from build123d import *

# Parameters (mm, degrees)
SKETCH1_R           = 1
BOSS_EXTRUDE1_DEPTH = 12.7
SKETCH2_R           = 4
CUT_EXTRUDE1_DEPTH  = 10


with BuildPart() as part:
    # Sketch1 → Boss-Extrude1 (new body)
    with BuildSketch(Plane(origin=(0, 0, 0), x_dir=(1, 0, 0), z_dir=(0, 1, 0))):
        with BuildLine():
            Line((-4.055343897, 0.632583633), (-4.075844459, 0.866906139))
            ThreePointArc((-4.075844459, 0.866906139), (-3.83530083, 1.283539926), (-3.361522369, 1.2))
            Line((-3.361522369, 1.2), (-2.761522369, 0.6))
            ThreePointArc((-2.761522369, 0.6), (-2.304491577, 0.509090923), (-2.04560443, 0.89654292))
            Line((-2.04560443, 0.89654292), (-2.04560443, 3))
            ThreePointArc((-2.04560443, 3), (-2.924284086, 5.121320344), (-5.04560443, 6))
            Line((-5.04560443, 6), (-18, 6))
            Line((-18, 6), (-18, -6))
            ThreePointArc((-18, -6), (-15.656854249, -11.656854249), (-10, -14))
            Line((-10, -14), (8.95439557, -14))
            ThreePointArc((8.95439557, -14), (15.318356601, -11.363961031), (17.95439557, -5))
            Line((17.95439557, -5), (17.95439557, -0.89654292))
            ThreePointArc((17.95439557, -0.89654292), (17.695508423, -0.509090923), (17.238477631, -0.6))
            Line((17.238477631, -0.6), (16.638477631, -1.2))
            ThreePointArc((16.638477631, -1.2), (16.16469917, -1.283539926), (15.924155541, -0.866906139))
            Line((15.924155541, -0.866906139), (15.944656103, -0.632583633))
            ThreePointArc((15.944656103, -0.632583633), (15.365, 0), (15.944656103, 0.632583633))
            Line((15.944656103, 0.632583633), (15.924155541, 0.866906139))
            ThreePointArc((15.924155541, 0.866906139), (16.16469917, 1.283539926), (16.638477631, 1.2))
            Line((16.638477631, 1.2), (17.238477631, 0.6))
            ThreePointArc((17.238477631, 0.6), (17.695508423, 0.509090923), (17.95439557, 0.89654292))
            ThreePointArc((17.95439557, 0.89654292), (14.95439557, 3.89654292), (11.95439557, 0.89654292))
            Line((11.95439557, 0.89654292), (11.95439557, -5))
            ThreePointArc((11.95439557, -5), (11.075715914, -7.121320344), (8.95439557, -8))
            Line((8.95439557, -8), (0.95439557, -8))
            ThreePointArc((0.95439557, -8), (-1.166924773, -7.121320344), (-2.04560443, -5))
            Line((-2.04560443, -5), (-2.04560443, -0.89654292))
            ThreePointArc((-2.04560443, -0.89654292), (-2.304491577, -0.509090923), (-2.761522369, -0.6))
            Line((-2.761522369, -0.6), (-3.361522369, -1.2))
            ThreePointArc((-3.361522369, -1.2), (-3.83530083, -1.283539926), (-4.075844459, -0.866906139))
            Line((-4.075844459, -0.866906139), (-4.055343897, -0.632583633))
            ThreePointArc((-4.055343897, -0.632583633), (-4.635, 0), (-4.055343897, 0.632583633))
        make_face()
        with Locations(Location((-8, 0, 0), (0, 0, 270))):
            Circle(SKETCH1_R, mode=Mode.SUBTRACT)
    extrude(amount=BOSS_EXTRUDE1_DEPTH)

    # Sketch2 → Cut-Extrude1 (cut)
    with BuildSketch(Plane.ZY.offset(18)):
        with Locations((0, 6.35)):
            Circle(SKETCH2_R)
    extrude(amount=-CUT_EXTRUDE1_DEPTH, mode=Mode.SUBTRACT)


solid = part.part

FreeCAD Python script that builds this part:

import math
import FreeCAD as App
import Part
import Sketcher
from FreeCAD import Vector
Q = App.Units.Quantity

doc = App.newDocument("Part")
body = doc.addObject("PartDesign::Body", "Body")

# Sketch on XZ plane
sketch1 = body.newObject("Sketcher::SketchObject", "Sketch")
sketch1.AttachmentSupport = (doc.getObject("XZ_Plane"), [""])
sketch1.MapMode = "FlatFace"
sketch1.addGeometry(Part.LineSegment(Vector(-4.06, -0.63, 0), Vector(-4.08, -0.87, 0)), False)
sketch1.addGeometry(Part.ArcOfCircle(Part.Circle(Vector(-3.66, -0.9, 0), Vector(0, 0, 1), 0.42), math.radians(175), math.radians(315)), False)
sketch1.addGeometry(Part.LineSegment(Vector(-3.36, -1.2, 0), Vector(-2.76, -0.6, 0)), False)
sketch1.addGeometry(Part.ArcOfCircle(Part.Circle(Vector(-2.46, -0.9, 0), Vector(0, 0, 1), 0.42), math.radians(0), math.radians(135)), False)
sketch1.addGeometry(Part.LineSegment(Vector(-2.05, -0.9, 0), Vector(-2.05, -3, 0)), False)
sketch1.addGeometry(Part.ArcOfCircle(Part.Circle(Vector(-5.05, -3, 0), Vector(0, 0, 1), 3), math.radians(-90), math.radians(0)), False)
sketch1.addGeometry(Part.LineSegment(Vector(-5.05, -6, 0), Vector(-18, -6, 0)), False)
sketch1.addGeometry(Part.LineSegment(Vector(-18, -6, 0), Vector(-18, 6, 0)), False)
sketch1.addGeometry(Part.ArcOfCircle(Part.Circle(Vector(-10, 6, 0), Vector(0, 0, 1), 8), math.radians(90), math.radians(180)), False)
sketch1.addGeometry(Part.LineSegment(Vector(-10, 14, 0), Vector(8.95, 14, 0)), False)
sketch1.addGeometry(Part.ArcOfCircle(Part.Circle(Vector(8.95, 5, 0), Vector(0, 0, 1), 9), math.radians(0), math.radians(90)), False)
sketch1.addGeometry(Part.LineSegment(Vector(17.95, 5, 0), Vector(17.95, 0.9, 0)), False)
sketch1.addGeometry(Part.ArcOfCircle(Part.Circle(Vector(17.54, 0.9, 0), Vector(0, 0, 1), 0.42), math.radians(-135), math.radians(0)), False)
sketch1.addGeometry(Part.LineSegment(Vector(17.24, 0.6, 0), Vector(16.64, 1.2, 0)), False)
sketch1.addGeometry(Part.ArcOfCircle(Part.Circle(Vector(16.34, 0.9, 0), Vector(0, 0, 1), 0.42), math.radians(45), math.radians(185)), False)
sketch1.addGeometry(Part.LineSegment(Vector(15.92, 0.87, 0), Vector(15.94, 0.63, 0)), False)
sketch1.addGeometry(Part.ArcOfCircle(Part.Circle(Vector(16, 0, 0), Vector(0, 0, 1), 0.64), math.radians(95), math.radians(265)), False)
sketch1.addGeometry(Part.LineSegment(Vector(15.94, -0.63, 0), Vector(15.92, -0.87, 0)), False)
sketch1.addGeometry(Part.ArcOfCircle(Part.Circle(Vector(16.34, -0.9, 0), Vector(0, 0, 1), 0.42), math.radians(175), math.radians(315)), False)
sketch1.addGeometry(Part.LineSegment(Vector(16.64, -1.2, 0), Vector(17.24, -0.6, 0)), False)
sketch1.addGeometry(Part.ArcOfCircle(Part.Circle(Vector(17.54, -0.9, 0), Vector(0, 0, 1), 0.42), math.radians(0), math.radians(135)), False)
sketch1.addGeometry(Part.ArcOfCircle(Part.Circle(Vector(14.95, -0.9, 0), Vector(0, 0, 1), 3), math.radians(180), math.radians(360)), False)
sketch1.addGeometry(Part.LineSegment(Vector(11.95, -0.9, 0), Vector(11.95, 5, 0)), False)
sketch1.addGeometry(Part.ArcOfCircle(Part.Circle(Vector(8.95, 5, 0), Vector(0, 0, 1), 3), math.radians(0), math.radians(90)), False)
sketch1.addGeometry(Part.LineSegment(Vector(8.95, 8, 0), Vector(0.95, 8, 0)), False)
sketch1.addGeometry(Part.ArcOfCircle(Part.Circle(Vector(0.95, 5, 0), Vector(0, 0, 1), 3), math.radians(90), math.radians(180)), False)
sketch1.addGeometry(Part.LineSegment(Vector(-2.05, 5, 0), Vector(-2.05, 0.9, 0)), False)
sketch1.addGeometry(Part.ArcOfCircle(Part.Circle(Vector(-2.46, 0.9, 0), Vector(0, 0, 1), 0.42), math.radians(-135), math.radians(0)), False)
sketch1.addGeometry(Part.LineSegment(Vector(-2.76, 0.6, 0), Vector(-3.36, 1.2, 0)), False)
sketch1.addGeometry(Part.ArcOfCircle(Part.Circle(Vector(-3.66, 0.9, 0), Vector(0, 0, 1), 0.42), math.radians(45), math.radians(185)), False)
sketch1.addGeometry(Part.LineSegment(Vector(-4.08, 0.87, 0), Vector(-4.06, 0.63, 0)), False)
sketch1.addGeometry(Part.ArcOfCircle(Part.Circle(Vector(-4, 0, 0), Vector(0, 0, 1), 0.64), math.radians(95), math.radians(265)), False)
sketch1.addGeometry(Part.Circle(Vector(-8, 0, 0), Vector(0, 0, 1), 1), False)
sketch1.addConstraint(Sketcher.Constraint("Tangent", 0, 2, 1, 1))
sketch1.addConstraint(Sketcher.Constraint("Tangent", 1, 2, 2, 1))
sketch1.addConstraint(Sketcher.Constraint("Tangent", 2, 2, 3, 2))
sketch1.addConstraint(Sketcher.Constraint("Tangent", 3, 1, 4, 1))
sketch1.addConstraint(Sketcher.Constraint("Tangent", 4, 2, 5, 2))
sketch1.addConstraint(Sketcher.Constraint("Tangent", 5, 1, 6, 1))
sketch1.addConstraint(Sketcher.Constraint("Coincident", 6, 2, 7, 1))
sketch1.addConstraint(Sketcher.Constraint("Tangent", 7, 2, 8, 2))
sketch1.addConstraint(Sketcher.Constraint("Tangent", 8, 1, 9, 1))
sketch1.addConstraint(Sketcher.Constraint("Tangent", 9, 2, 10, 2))
sketch1.addConstraint(Sketcher.Constraint("Tangent", 10, 1, 11, 1))
sketch1.addConstraint(Sketcher.Constraint("Tangent", 11, 2, 12, 2))
sketch1.addConstraint(Sketcher.Constraint("Tangent", 12, 1, 13, 1))
sketch1.addConstraint(Sketcher.Constraint("Tangent", 13, 2, 14, 1))
sketch1.addConstraint(Sketcher.Constraint("Tangent", 14, 2, 15, 1))
sketch1.addConstraint(Sketcher.Constraint("Coincident", 15, 2, 16, 1))
sketch1.addConstraint(Sketcher.Constraint("Coincident", 16, 2, 17, 1))
sketch1.addConstraint(Sketcher.Constraint("Tangent", 17, 2, 18, 1))
sketch1.addConstraint(Sketcher.Constraint("Tangent", 18, 2, 19, 1))
sketch1.addConstraint(Sketcher.Constraint("Tangent", 19, 2, 20, 2))
sketch1.addConstraint(Sketcher.Constraint("Tangent", 20, 1, 21, 2))
sketch1.addConstraint(Sketcher.Constraint("Tangent", 21, 1, 22, 1))
sketch1.addConstraint(Sketcher.Constraint("Tangent", 22, 2, 23, 1))
sketch1.addConstraint(Sketcher.Constraint("Tangent", 23, 2, 24, 1))
sketch1.addConstraint(Sketcher.Constraint("Tangent", 24, 2, 25, 1))
sketch1.addConstraint(Sketcher.Constraint("Tangent", 25, 2, 26, 1))
sketch1.addConstraint(Sketcher.Constraint("Tangent", 26, 2, 27, 2))
sketch1.addConstraint(Sketcher.Constraint("Tangent", 27, 1, 28, 1))
sketch1.addConstraint(Sketcher.Constraint("Tangent", 28, 2, 29, 1))
sketch1.addConstraint(Sketcher.Constraint("Tangent", 29, 2, 30, 1))
sketch1.addConstraint(Sketcher.Constraint("Coincident", 30, 2, 31, 1))
sketch1.addConstraint(Sketcher.Constraint("Coincident", 31, 2, 0, 1))
sketch1.addConstraint(Sketcher.Constraint("Vertical", 4))
sketch1.addConstraint(Sketcher.Constraint("Horizontal", 6))
sketch1.addConstraint(Sketcher.Constraint("Vertical", 7))
sketch1.addConstraint(Sketcher.Constraint("Horizontal", 9))
sketch1.addConstraint(Sketcher.Constraint("Vertical", 11))
sketch1.addConstraint(Sketcher.Constraint("Vertical", 22))
sketch1.addConstraint(Sketcher.Constraint("Horizontal", 24))
sketch1.addConstraint(Sketcher.Constraint("Vertical", 26))
sketch1.addConstraint(Sketcher.Constraint("Coincident", 23, 3, 10, 3))
sketch1.addConstraint(Sketcher.Constraint("Equal", 1, 3))
sketch1.addConstraint(Sketcher.Constraint("Equal", 3, 12))
sketch1.addConstraint(Sketcher.Constraint("Equal", 12, 14))
sketch1.addConstraint(Sketcher.Constraint("Equal", 14, 18))
sketch1.addConstraint(Sketcher.Constraint("Equal", 18, 20))
sketch1.addConstraint(Sketcher.Constraint("Equal", 5, 21))
sketch1.addConstraint(Sketcher.Constraint("Equal", 21, 23))
sketch1.addConstraint(Sketcher.Constraint("Equal", 23, 25))
sketch1.addConstraint(Sketcher.Constraint("Equal", 20, 27))
sketch1.addConstraint(Sketcher.Constraint("Equal", 27, 29))
sketch1.addConstraint(Sketcher.Constraint("Equal", 16, 31))
sketch1.addConstraint(Sketcher.Constraint("Symmetric", 14, 3, 18, 3, -1))
sketch1.addConstraint(Sketcher.Constraint("Symmetric", 12, 3, 20, 3, -1))
sketch1.addConstraint(Sketcher.Constraint("Symmetric", 3, 3, 27, 3, -1))
sketch1.addConstraint(Sketcher.Constraint("Symmetric", 1, 3, 29, 3, -1))
sketch1.addConstraint(Sketcher.Constraint("Symmetric", 15, 2, 16, 2, -1))
sketch1.addConstraint(Sketcher.Constraint("Symmetric", 30, 2, 31, 2, -1))
sketch1.addConstraint(Sketcher.Constraint("PointOnObject", 32, 3, -1))
sketch1.addConstraint(Sketcher.Constraint("Perpendicular", 2, 13))
sketch1.addConstraint(Sketcher.Constraint("Parallel", 0, 17))
sketch1.addConstraint(Sketcher.Constraint("Perpendicular", 13, 19))
sketch1.addConstraint(Sketcher.Constraint("Horizontal", 1, 3, 18, 3))
sketch1.addConstraint(Sketcher.Constraint("Horizontal", 3, 3, 20, 3))
sketch1.addConstraint(Sketcher.Constraint("Horizontal", 20, 3, 21, 3))
sketch1.addConstraint(Sketcher.Constraint("Horizontal", 15, 2, 30, 2))
sketch1.addConstraint(Sketcher.Constraint("Diameter", 32, Q("2 mm")))
sketch1.addConstraint(Sketcher.Constraint("Radius", 5, Q("3 mm")))
sketch1.addConstraint(Sketcher.Constraint("Radius", 8, Q("8 mm")))
sketch1.addConstraint(Sketcher.Constraint("DistanceX", 24, 2, 24, 1, Q("8 mm")))
sketch1.addConstraint(Sketcher.Constraint("DistanceY", 7, 1, 7, 2, Q("12 mm")))
sketch1.addConstraint(Sketcher.Constraint("Angle", 0, Q("-95 deg")))
sketch1.addConstraint(Sketcher.Constraint("DistanceY", 5, 3, -1, 1, Q("3 mm")))
sketch1.addConstraint(Sketcher.Constraint("DistanceX", 8, 3, -1, 1, Q("10 mm")))
sketch1.addConstraint(Sketcher.Constraint("DistanceX", -1, 1, 16, 3, Q("16 mm")))
sketch1.addConstraint(Sketcher.Constraint("DistanceX", 32, 3, -1, 1, Q("8 mm")))
sketch1.addConstraint(Sketcher.Constraint("Radius", 16, Q("0.635 mm")))
sketch1.addConstraint(Sketcher.Constraint("DistanceY", 1, 2, -1, 1, Q("1.2 mm")))
sketch1.addConstraint(Sketcher.Constraint("DistanceY", 2, 2, -1, 1, Q("0.6 mm")))
sketch1.addConstraint(Sketcher.Constraint("Radius", 1, Q("0.419375 mm")))
sketch1.addConstraint(Sketcher.Constraint("DistanceX", 6, 2, 6, 1, Q("12.954396 mm")))
pad1 = body.newObject("PartDesign::Pad", "Pad")
pad1.Profile = sketch1
pad1.Length = 12.7
pad1.Reversed = True

# Sketch on YZ plane
sketch2 = body.newObject("Sketcher::SketchObject", "Sketch001")
sketch2.AttachmentSupport = (doc.getObject("YZ_Plane"), [""])
sketch2.MapMode = "FlatFace"
sketch2.AttachmentOffset = App.Placement(Vector(0, 0, -18), App.Rotation())
sketch2.addGeometry(Part.Circle(Vector(6.3, 0, 0), Vector(0, 0, 1), 4), False)
sketch2.addConstraint(Sketcher.Constraint("PointOnObject", 0, 3, -1))
sketch2.addConstraint(Sketcher.Constraint("Diameter", 0, Q("8 mm")))
sketch2.addConstraint(Sketcher.Constraint("DistanceX", -1, 1, 0, 3, Q("6.35 mm")))
pocket1 = body.newObject("PartDesign::Pocket", "Pocket")
pocket1.Profile = sketch2
pocket1.Length = 10
pocket1.Reversed = True

doc.recompute()
